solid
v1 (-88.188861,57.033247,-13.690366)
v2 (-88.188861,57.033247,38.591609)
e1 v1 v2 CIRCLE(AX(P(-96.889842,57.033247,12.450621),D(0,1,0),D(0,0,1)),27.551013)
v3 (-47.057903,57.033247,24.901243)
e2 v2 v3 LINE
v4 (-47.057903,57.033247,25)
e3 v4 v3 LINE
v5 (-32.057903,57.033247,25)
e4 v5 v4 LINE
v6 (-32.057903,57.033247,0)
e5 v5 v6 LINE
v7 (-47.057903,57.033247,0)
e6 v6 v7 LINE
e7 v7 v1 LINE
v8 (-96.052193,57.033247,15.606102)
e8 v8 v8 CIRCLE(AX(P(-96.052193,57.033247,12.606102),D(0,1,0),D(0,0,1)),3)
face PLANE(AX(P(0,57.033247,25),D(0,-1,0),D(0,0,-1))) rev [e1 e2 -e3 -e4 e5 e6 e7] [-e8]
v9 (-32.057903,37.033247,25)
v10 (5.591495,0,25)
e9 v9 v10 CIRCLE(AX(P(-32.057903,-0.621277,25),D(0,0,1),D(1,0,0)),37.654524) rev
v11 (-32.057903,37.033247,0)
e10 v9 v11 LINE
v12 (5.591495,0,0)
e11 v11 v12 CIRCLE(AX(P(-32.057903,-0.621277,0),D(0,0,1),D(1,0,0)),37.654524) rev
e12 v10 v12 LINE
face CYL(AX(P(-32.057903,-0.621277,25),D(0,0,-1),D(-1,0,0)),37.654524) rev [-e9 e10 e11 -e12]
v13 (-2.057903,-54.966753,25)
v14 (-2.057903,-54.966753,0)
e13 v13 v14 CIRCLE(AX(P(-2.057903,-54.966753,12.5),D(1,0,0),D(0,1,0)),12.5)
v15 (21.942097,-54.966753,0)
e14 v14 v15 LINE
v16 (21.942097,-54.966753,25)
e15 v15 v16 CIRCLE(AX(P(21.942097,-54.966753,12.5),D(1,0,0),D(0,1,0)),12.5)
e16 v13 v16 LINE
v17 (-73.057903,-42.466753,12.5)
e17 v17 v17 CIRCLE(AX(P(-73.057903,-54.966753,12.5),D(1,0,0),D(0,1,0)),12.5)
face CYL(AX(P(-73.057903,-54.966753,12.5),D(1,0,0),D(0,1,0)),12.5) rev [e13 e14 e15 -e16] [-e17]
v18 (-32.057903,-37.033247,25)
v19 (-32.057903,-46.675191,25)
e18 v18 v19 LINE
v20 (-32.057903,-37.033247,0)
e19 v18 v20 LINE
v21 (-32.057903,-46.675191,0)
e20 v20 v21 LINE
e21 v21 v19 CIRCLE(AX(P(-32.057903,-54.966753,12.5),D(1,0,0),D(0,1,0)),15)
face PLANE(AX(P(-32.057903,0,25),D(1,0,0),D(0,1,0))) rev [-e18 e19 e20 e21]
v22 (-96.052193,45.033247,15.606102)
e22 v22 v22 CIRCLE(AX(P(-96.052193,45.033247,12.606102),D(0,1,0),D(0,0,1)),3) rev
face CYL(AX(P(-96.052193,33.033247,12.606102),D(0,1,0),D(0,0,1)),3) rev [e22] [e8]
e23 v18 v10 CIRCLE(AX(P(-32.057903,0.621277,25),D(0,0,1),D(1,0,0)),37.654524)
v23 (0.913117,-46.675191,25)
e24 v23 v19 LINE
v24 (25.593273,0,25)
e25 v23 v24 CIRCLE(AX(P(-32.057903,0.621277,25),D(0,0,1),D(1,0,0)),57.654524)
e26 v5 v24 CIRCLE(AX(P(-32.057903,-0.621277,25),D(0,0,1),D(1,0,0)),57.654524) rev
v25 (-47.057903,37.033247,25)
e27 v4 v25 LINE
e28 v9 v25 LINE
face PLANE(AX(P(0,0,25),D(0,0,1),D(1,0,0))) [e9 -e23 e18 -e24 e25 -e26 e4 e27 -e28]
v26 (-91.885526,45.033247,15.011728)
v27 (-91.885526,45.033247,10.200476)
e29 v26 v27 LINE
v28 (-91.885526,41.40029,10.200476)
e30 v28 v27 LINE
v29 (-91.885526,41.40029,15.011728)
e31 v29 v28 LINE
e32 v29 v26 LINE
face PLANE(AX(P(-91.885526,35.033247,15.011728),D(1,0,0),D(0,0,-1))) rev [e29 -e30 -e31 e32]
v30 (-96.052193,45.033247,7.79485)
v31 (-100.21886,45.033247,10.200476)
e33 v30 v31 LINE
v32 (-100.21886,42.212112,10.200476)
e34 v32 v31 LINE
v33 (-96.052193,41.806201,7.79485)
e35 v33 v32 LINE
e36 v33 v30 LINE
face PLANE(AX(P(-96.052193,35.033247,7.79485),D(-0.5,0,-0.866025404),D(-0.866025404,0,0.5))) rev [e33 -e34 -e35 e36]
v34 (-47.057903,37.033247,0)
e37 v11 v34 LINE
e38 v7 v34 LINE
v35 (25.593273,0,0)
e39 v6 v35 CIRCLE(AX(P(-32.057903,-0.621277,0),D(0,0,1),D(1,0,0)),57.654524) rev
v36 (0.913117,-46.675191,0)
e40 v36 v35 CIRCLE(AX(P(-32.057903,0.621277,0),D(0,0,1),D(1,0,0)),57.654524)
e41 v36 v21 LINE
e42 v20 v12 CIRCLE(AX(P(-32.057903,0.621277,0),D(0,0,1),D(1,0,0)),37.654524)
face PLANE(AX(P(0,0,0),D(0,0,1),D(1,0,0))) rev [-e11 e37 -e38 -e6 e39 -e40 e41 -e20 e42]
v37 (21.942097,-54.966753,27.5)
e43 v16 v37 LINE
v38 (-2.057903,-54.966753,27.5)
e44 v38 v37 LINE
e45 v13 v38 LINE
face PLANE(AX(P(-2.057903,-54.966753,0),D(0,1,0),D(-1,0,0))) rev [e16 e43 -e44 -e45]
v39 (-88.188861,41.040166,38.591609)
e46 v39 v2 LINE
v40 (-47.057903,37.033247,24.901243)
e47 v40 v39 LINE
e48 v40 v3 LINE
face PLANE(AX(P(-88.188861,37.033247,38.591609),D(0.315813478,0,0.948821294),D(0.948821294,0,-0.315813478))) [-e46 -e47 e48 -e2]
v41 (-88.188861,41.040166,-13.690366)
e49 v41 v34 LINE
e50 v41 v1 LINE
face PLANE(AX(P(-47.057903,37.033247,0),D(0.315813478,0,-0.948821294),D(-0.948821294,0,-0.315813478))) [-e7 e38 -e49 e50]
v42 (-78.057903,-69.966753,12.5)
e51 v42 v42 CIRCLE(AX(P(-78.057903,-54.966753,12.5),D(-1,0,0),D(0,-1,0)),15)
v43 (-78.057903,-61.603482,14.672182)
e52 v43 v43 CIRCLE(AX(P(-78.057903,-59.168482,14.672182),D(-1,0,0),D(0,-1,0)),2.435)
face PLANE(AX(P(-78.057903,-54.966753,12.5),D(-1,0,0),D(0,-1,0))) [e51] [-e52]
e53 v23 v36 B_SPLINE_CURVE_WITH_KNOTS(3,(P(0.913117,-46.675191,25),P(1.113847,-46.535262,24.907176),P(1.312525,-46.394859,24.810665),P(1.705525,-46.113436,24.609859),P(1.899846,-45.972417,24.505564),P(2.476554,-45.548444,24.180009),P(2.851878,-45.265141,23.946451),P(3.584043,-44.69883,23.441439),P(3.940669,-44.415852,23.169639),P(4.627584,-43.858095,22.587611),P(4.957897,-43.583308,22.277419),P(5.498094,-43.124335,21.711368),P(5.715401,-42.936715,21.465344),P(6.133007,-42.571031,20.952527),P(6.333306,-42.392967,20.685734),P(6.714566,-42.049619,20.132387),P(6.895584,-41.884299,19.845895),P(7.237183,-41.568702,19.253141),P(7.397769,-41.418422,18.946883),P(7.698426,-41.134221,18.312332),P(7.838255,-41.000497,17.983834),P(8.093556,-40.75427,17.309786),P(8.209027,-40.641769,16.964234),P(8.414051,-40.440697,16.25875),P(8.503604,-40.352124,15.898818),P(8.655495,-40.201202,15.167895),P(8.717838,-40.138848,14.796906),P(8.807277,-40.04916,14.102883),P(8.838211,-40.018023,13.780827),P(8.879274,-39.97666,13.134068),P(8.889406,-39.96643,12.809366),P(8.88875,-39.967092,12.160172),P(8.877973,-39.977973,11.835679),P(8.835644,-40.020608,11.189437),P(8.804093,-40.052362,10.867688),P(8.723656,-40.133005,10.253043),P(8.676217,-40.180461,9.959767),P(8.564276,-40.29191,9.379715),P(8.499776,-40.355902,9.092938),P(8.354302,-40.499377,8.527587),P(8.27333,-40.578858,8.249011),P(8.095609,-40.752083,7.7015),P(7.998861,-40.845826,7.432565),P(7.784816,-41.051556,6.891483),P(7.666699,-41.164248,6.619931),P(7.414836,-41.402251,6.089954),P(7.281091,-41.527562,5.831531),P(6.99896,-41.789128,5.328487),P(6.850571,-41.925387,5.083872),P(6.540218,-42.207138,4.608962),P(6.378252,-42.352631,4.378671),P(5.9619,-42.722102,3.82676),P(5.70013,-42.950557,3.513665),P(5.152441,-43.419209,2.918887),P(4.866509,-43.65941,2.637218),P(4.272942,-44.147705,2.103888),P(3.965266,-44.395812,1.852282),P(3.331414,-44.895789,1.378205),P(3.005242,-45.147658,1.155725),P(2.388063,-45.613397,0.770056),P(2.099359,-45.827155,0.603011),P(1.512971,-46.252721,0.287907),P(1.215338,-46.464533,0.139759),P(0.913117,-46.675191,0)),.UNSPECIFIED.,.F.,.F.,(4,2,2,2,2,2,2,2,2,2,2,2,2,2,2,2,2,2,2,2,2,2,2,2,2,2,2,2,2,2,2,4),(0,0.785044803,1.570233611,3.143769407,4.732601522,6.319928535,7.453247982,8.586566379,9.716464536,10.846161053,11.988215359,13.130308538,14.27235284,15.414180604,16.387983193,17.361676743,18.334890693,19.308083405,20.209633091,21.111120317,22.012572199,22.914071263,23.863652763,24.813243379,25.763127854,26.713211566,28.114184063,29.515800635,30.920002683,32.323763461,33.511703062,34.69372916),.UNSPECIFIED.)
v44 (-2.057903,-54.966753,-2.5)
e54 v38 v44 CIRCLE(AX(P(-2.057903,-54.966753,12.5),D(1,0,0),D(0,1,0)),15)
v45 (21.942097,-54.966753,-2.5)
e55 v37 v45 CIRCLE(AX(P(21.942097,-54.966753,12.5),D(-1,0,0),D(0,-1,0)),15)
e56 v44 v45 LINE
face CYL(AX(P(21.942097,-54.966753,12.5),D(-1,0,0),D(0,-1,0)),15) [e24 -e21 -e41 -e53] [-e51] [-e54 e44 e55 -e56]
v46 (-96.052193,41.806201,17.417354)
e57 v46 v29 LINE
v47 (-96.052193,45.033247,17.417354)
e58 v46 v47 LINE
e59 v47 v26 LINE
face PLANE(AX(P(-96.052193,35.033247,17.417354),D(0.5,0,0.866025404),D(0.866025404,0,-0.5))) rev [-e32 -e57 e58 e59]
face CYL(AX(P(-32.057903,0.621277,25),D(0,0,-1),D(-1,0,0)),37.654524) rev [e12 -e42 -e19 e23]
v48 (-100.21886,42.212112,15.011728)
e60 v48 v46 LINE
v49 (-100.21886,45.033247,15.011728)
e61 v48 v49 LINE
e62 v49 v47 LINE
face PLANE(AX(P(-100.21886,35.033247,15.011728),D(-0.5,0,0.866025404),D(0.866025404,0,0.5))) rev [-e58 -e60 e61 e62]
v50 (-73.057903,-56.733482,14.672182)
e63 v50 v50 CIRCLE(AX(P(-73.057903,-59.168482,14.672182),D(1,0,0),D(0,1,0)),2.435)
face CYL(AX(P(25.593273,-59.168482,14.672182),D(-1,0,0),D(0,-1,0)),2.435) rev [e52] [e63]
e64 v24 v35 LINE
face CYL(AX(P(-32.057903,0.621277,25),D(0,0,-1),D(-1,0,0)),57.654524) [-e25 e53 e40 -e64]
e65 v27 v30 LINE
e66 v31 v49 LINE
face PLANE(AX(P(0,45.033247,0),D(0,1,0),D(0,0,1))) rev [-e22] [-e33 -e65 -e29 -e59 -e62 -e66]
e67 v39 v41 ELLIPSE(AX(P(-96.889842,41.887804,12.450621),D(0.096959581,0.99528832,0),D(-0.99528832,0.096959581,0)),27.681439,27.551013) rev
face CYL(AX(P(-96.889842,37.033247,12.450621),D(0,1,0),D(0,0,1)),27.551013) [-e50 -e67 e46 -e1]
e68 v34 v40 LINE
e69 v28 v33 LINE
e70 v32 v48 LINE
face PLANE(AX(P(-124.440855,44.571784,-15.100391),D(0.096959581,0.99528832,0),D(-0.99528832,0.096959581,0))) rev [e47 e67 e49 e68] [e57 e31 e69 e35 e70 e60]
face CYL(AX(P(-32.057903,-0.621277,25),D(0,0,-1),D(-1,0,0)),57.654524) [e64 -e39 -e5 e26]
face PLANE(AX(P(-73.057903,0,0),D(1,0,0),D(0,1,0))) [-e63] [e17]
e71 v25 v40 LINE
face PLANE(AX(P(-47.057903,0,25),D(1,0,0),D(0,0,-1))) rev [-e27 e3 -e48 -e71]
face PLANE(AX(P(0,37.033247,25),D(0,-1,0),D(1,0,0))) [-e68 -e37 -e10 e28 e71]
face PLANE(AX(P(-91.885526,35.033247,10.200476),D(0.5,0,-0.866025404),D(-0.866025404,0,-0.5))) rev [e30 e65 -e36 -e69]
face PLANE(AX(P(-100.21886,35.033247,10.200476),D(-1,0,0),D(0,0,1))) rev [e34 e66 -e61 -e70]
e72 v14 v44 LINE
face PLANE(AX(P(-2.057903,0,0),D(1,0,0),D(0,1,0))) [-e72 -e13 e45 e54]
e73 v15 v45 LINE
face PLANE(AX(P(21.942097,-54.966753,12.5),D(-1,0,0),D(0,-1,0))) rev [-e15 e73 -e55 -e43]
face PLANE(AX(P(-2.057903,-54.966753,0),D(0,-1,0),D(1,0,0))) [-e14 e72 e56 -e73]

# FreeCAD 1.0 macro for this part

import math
import FreeCAD as App
import Part
import Sketcher
from FreeCAD import Vector
Q = App.Units.Quantity

doc = App.newDocument("Part")
body = doc.addObject("PartDesign::Body", "Body")

# Sketch on XY plane
sketch1 = doc.addObject("Sketcher::SketchObject", "Sketch")
body.addObject(sketch1)
sketch1.AttachmentSupport = (doc.XY_Plane, [""])
sketch1.MapMode = "FlatFace"
sketch1.addGeometry([
    Part.ArcOfCircle(Part.Circle(Vector(-32.057903, 0.621277, 0), Vector(0, 0, 1), 37.654524), math.radians(-90), math.radians(-0.945389)),  # 0
    Part.LineSegment(Vector(-32.057903, -37.033247, 0), Vector(-32.057903, -57.033247, 0)),  # 1
    Part.ArcOfCircle(Part.Circle(Vector(-32.057903, 0.621277, 0), Vector(0, 0, 1), 57.654524), math.radians(-90), math.radians(-0.617423)),  # 2
    Part.ArcOfCircle(Part.Circle(Vector(-32.057903, -0.621277, 0), Vector(0, 0, 1), 57.654524), math.radians(0.617423), math.radians(90)),  # 3
    Part.LineSegment(Vector(-32.057903, 57.033247, 0), Vector(-47.057903, 57.033247, 0)),  # 4
    Part.LineSegment(Vector(-47.057903, 57.033247, 0), Vector(-47.057903, 37.033247, 0)),  # 5
    Part.LineSegment(Vector(-47.057903, 37.033247, 0), Vector(-32.057903, 37.033247, 0)),  # 6
    Part.ArcOfCircle(Part.Circle(Vector(-32.057903, -0.621277, 0), Vector(0, 0, 1), 37.654524), math.radians(0.945389), math.radians(90)),  # 7
], False)
sketch1.addConstraint([
    Sketcher.Constraint("Coincident", 0, 1, 1, 1),
    Sketcher.Constraint("Coincident", 1, 2, 2, 1),
    Sketcher.Constraint("Coincident", 2, 2, 3, 1),
    Sketcher.Constraint("Tangent", 3, 2, 4, 1),
    Sketcher.Constraint("Coincident", 4, 2, 5, 1),
    Sketcher.Constraint("Coincident", 5, 2, 6, 1),
    Sketcher.Constraint("Tangent", 6, 2, 7, 2),
    Sketcher.Constraint("Coincident", 7, 1, 0, 2),
    Sketcher.Constraint("Vertical", 1),
    Sketcher.Constraint("Horizontal", 4),
    Sketcher.Constraint("Vertical", 5),
    Sketcher.Constraint("Horizontal", 6),
    Sketcher.Constraint("Coincident", 2, 3, 0, 3),
    Sketcher.Constraint("Coincident", 7, 3, 3, 3),
    Sketcher.Constraint("Equal", 2, 3),
    Sketcher.Constraint("Equal", 0, 7),
    Sketcher.Constraint("Symmetric", 0, 3, 3, 3, -1),
    Sketcher.Constraint("Vertical", 7, 3, 0, 1),
    Sketcher.Constraint("DistanceX", 4, 2, 4, 1, Q("15 mm")),
    Sketcher.Constraint("DistanceY", 1, 2, 1, 1, Q("20 mm")),
    Sketcher.Constraint("Radius", 0, Q("37.654524 mm")),
    Sketcher.Constraint("DistanceX", 0, 3, 7, 1, Q("37.649398 mm")),
    Sketcher.Constraint("DistanceX", 0, 3, -1, 1, Q("32.057903 mm")),
])
pad1 = doc.addObject("PartDesign::Pad", "Pad")
body.addObject(pad1)
pad1.Profile = sketch1
pad1.Length = 25

# Sketch on XZ plane
sketch2 = doc.addObject("Sketcher::SketchObject", "Sketch001")
body.addObject(sketch2)
sketch2.AttachmentSupport = (doc.XZ_Plane, [""])
sketch2.MapMode = "FlatFace"
sketch2.AttachmentOffset = App.Placement(Vector(0, 0, -57.033247), App.Rotation())
sketch2.addGeometry([
    Part.LineSegment(Vector(-47.057903, 24.901243, 0), Vector(-47.057903, 0, 0)),
    Part.LineSegment(Vector(-47.057903, 0, 0), Vector(-88.188861, -13.690366, 0)),
    Part.ArcOfCircle(Part.Circle(Vector(-96.889842, 12.450621, 0), Vector(0, 0, 1), 27.551013), math.radians(71.59007), math.radians(288.40993)),
    Part.LineSegment(Vector(-88.188861, 38.591609, 0), Vector(-47.057903, 24.901243, 0)),
], False)
sketch2.addConstraint([
    Sketcher.Constraint("Coincident", 0, 2, 1, 1),
    Sketcher.Constraint("Tangent", 1, 2, 2, 2),
    Sketcher.Constraint("Tangent", 2, 1, 3, 1),
    Sketcher.Constraint("Coincident", 3, 2, 0, 1),
    Sketcher.Constraint("Vertical", 0),
    Sketcher.Constraint("PointOnObject", 0, 2, -1),
    Sketcher.Constraint("Vertical", 1, 2, 2, 1),
    Sketcher.Constraint("Radius", 2, Q("27.551013 mm")),
    Sketcher.Constraint("Distance", 1, Q("43.349531 mm")),
    Sketcher.Constraint("DistanceY", 0, 2, 0, 1, Q("24.901243 mm")),
    Sketcher.Constraint("DistanceX", 1, 2, -1, 1, Q("88.188861 mm")),
])
pad2 = doc.addObject("PartDesign::Pad", "Pad001")
body.addObject(pad2)
pad2.Profile = sketch2
pad2.Length = 20

# Sketch on YZ plane
sketch3 = doc.addObject("Sketcher::SketchObject", "Sketch002")
body.addObject(sketch3)
sketch3.AttachmentSupport = (doc.YZ_Plane, [""])
sketch3.MapMode = "FlatFace"
sketch3.AttachmentOffset = App.Placement(Vector(0, 0, -32.057903), App.Rotation())
sketch3.addGeometry(Part.Circle(Vector(-54.966753, 12.5, 0), Vector(0, 0, 1), 15), False)
sketch3.addConstraint([
    Sketcher.Constraint("Diameter", 0, Q("30 mm")),
    Sketcher.Constraint("DistanceY", -1, 1, 0, 3, Q("12.5 mm")),
    Sketcher.Constraint("DistanceX", 0, 3, -1, 1, Q("54.966753 mm")),
])
pad3 = doc.addObject("PartDesign::Pad", "Pad002")
body.addObject(pad3)
pad3.Profile = sketch3
pad3.Type = "TwoLengths"
pad3.Length = 46
pad3.Length2 = 54
pad3.Reversed = True

# Sketch on YZ plane
sketch4 = doc.addObject("Sketcher::SketchObject", "Sketch003")
body.addObject(sketch4)
sketch4.AttachmentSupport = (doc.YZ_Plane, [""])
sketch4.MapMode = "FlatFace"
sketch4.AttachmentOffset = App.Placement(Vector(0, 0, 21.942097), App.Rotation())
sketch4.addGeometry(Part.Circle(Vector(-54.966753, 12.5, 0), Vector(0, 0, 1), 12.5), False)
sketch4.addConstraint([
    Sketcher.Constraint("Diameter", 0, Q("25 mm")),
    Sketcher.Constraint("DistanceY", -1, 1, 0, 3, Q("12.5 mm")),
    Sketcher.Constraint("DistanceX", 0, 3, -1, 1, Q("54.966753 mm")),
])
pocket1 = doc.addObject("PartDesign::Pocket", "Pocket")
body.addObject(pocket1)
pocket1.Profile = sketch4
pocket1.Length = 95

# Sketch on XZ plane
sketch5 = doc.addObject("Sketcher::SketchObject", "Sketch004")
body.addObject(sketch5)
sketch5.AttachmentSupport = (doc.XZ_Plane, [""])
sketch5.MapMode = "FlatFace"
sketch5.AttachmentOffset = App.Placement(Vector(0, 0, -57.033247), App.Rotation())
sketch5.addGeometry(Part.Circle(Vector(-96.052193, 12.606102, 0), Vector(0, 0, 1), 3), False)
sketch5.addConstraint([
    Sketcher.Constraint("Diameter", 0, Q("6 mm")),
    Sketcher.Constraint("DistanceX", 0, 3, -1, 1, Q("96.052193 mm")),
    Sketcher.Constraint("DistanceY", -1, 1, 0, 3, Q("12.606102 mm")),
])
pocket2 = doc.addObject("PartDesign::Pocket", "Pocket001")
body.addObject(pocket2)
pocket2.Profile = sketch5
pocket2.Length = 24
pocket2.Reversed = True

# Sketch on XY plane
sketch6 = doc.addObject("Sketcher::SketchObject", "Sketch005")
body.addObject(sketch6)
sketch6.AttachmentSupport = (doc.XY_Plane, [""])
sketch6.MapMode = "FlatFace"
sketch6.addGeometry([
    Part.LineSegment(Vector(-47.057903, 37.033247, 0), Vector(-124.440855, 44.571784, 0)),
    Part.LineSegment(Vector(-124.440855, 44.571784, 0), Vector(-124.440855, 37.033247, 0)),
    Part.LineSegment(Vector(-124.440855, 37.033247, 0), Vector(-47.057903, 37.033247, 0)),
], False)
sketch6.addConstraint([
    Sketcher.Constraint("Coincident", 0, 2, 1, 1),
    Sketcher.Constraint("Coincident", 1, 2, 2, 1),
    Sketcher.Constraint("Coincident", 2, 2, 0, 1),
    Sketcher.Constraint("Vertical", 1),
    Sketcher.Constraint("Horizontal", 2),
    Sketcher.Constraint("DistanceX", 2, 1, 2, 2, Q("77.382951 mm")),
    Sketcher.Constraint("Distance", 0, Q("77.749281 mm")),
    Sketcher.Constraint("DistanceX", 0, 2, -1, 1, Q("124.440855 mm")),
    Sketcher.Constraint("DistanceY", -1, 1, 0, 2, Q("44.571784 mm")),
])
pocket3 = doc.addObject("PartDesign::Pocket", "Pocket002")
body.addObject(pocket3)
pocket3.Profile = sketch6
pocket3.Type = "ThroughAll"
pocket3.Midplane = True

# Sketch on YZ plane
sketch7 = doc.addObject("Sketcher::SketchObject", "Sketch006")
body.addObject(sketch7)
sketch7.AttachmentSupport = (doc.YZ_Plane, [""])
sketch7.MapMode = "FlatFace"
sketch7.AttachmentOffset = App.Placement(Vector(0, 0, 21.942097), App.Rotation())
sketch7.addGeometry([
    Part.LineSegment(Vector(-54.966753, -2.5, 0), Vector(-54.966753, 0, 0)),
    Part.ArcOfCircle(Part.Circle(Vector(-54.966753, 12.5, 0), Vector(0, 0, 1), 12.5), math.radians(90), math.radians(270)),
    Part.LineSegment(Vector(-54.966753, 25, 0), Vector(-54.966753, 27.5, 0)),
    Part.ArcOfCircle(Part.Circle(Vector(-54.966753, 12.5, 0), Vector(0, 0, 1), 15), math.radians(90), math.radians(270)),
], False)
sketch7.addConstraint([
    Sketcher.Constraint("Coincident", 0, 2, 1, 2),
    Sketcher.Constraint("Coincident", 1, 1, 2, 1),
    Sketcher.Constraint("Coincident", 2, 2, 3, 1),
    Sketcher.Constraint("Coincident", 3, 2, 0, 1),
    Sketcher.Constraint("Vertical", 0),
    Sketcher.Constraint("Vertical", 2),
    Sketcher.Constraint("Coincident", 3, 3, 1, 3),
    Sketcher.Constraint("PointOnObject", 0, 2, -1),
    Sketcher.Constraint("Vertical", 3, 3, 0, 2),
    Sketcher.Constraint("Vertical", 0, 2, 1, 1),
    Sketcher.Constraint("Radius", 3, Q("15 mm")),
    Sketcher.Constraint("Radius", 1, Q("12.5 mm")),
    Sketcher.Constraint("DistanceX", 1, 3, -1, 1, Q("54.966753 mm")),
])
pocket4 = doc.addObject("PartDesign::Pocket", "Pocket003")
body.addObject(pocket4)
pocket4.Profile = sketch7
pocket4.Length = 24

# Sketch on YZ plane
sketch8 = doc.addObject("Sketcher::SketchObject", "Sketch007")
body.addObject(sketch8)
sketch8.AttachmentSupport = (doc.YZ_Plane, [""])
sketch8.MapMode = "FlatFace"
sketch8.AttachmentOffset = App.Placement(Vector(0, 0, -78.057903), App.Rotation())
sketch8.addGeometry(Part.Circle(Vector(-59.168482, 14.672182, 0), Vector(0, 0, 1), 2.435), False)
sketch8.addConstraint([
    Sketcher.Constraint("Diameter", 0, Q("4.87 mm")),
    Sketcher.Constraint("DistanceX", 0, 3, -1, 1, Q("59.168482 mm")),
    Sketcher.Constraint("DistanceY", -1, 1, 0, 3, Q("14.672182 mm")),
])
pocket5 = doc.addObject("PartDesign::Pocket", "Pocket004")
body.addObject(pocket5)
pocket5.Profile = sketch8
pocket5.Type = "ThroughAll"
pocket5.Reversed = True

# Sketch on XZ plane
sketch9 = doc.addObject("Sketcher::SketchObject", "Sketch008")
body.addObject(sketch9)
sketch9.AttachmentSupport = (doc.XZ_Plane, [""])
sketch9.MapMode = "FlatFace"
sketch9.AttachmentOffset = App.Placement(Vector(0, 0, -45.033247), App.Rotation())
sketch9.addGeometry([
    Part.LineSegment(Vector(-96.052193, 7.79485, 0), Vector(-100.21886, 10.200476, 0)),  # 0
    Part.LineSegment(Vector(-100.21886, 10.200476, 0), Vector(-100.21886, 15.011728, 0)),  # 1
    Part.LineSegment(Vector(-100.21886, 15.011728, 0), Vector(-96.052193, 17.417354, 0)),  # 2
    Part.LineSegment(Vector(-96.052193, 17.417354, 0), Vector(-91.885526, 15.011728, 0)),  # 3
    Part.LineSegment(Vector(-91.885526, 15.011728, 0), Vector(-91.885526, 10.200476, 0)),  # 4
    Part.LineSegment(Vector(-91.885526, 10.200476, 0), Vector(-96.052193, 7.79485, 0)),  # 5
], False)
sketch9.addConstraint([
    Sketcher.Constraint("Coincident", 0, 2, 1, 1),
    Sketcher.Constraint("Coincident", 1, 2, 2, 1),
    Sketcher.Constraint("Coincident", 2, 2, 3, 1),
    Sketcher.Constraint("Coincident", 3, 2, 4, 1),
    Sketcher.Constraint("Coincident", 4, 2, 5, 1),
    Sketcher.Constraint("Coincident", 5, 2, 0, 1),
    Sketcher.Constraint("Vertical", 1),
    Sketcher.Constraint("Vertical", 4),
    Sketcher.Constraint("Parallel", 0, 3),
    Sketcher.Constraint("Parallel", 2, 5),
    Sketcher.Constraint("Horizontal", 1, 2, 3, 2),
    Sketcher.Constraint("Horizontal", 0, 2, 4, 2),
    Sketcher.Constraint("Vertical", 2, 2, 5, 2),
    Sketcher.Constraint("Angle", 0, Q("150 deg")),
    Sketcher.Constraint("DistanceY", 1, 1, 1, 2, Q("4.811252 mm")),
    Sketcher.Constraint("DistanceX", 0, 2, -1, 1, Q("100.21886 mm")),
    Sketcher.Constraint("DistanceY", -1, 1, 1, 2, Q("15.011728 mm")),
    Sketcher.Constraint("DistanceY", -1, 1, 5, 2, Q("7.79485 mm")),
])
pocket6 = doc.addObject("PartDesign::Pocket", "Pocket005")
body.addObject(pocket6)
pocket6.Profile = sketch9
pocket6.Length = 10
pocket6.Reversed = True

doc.recompute()
